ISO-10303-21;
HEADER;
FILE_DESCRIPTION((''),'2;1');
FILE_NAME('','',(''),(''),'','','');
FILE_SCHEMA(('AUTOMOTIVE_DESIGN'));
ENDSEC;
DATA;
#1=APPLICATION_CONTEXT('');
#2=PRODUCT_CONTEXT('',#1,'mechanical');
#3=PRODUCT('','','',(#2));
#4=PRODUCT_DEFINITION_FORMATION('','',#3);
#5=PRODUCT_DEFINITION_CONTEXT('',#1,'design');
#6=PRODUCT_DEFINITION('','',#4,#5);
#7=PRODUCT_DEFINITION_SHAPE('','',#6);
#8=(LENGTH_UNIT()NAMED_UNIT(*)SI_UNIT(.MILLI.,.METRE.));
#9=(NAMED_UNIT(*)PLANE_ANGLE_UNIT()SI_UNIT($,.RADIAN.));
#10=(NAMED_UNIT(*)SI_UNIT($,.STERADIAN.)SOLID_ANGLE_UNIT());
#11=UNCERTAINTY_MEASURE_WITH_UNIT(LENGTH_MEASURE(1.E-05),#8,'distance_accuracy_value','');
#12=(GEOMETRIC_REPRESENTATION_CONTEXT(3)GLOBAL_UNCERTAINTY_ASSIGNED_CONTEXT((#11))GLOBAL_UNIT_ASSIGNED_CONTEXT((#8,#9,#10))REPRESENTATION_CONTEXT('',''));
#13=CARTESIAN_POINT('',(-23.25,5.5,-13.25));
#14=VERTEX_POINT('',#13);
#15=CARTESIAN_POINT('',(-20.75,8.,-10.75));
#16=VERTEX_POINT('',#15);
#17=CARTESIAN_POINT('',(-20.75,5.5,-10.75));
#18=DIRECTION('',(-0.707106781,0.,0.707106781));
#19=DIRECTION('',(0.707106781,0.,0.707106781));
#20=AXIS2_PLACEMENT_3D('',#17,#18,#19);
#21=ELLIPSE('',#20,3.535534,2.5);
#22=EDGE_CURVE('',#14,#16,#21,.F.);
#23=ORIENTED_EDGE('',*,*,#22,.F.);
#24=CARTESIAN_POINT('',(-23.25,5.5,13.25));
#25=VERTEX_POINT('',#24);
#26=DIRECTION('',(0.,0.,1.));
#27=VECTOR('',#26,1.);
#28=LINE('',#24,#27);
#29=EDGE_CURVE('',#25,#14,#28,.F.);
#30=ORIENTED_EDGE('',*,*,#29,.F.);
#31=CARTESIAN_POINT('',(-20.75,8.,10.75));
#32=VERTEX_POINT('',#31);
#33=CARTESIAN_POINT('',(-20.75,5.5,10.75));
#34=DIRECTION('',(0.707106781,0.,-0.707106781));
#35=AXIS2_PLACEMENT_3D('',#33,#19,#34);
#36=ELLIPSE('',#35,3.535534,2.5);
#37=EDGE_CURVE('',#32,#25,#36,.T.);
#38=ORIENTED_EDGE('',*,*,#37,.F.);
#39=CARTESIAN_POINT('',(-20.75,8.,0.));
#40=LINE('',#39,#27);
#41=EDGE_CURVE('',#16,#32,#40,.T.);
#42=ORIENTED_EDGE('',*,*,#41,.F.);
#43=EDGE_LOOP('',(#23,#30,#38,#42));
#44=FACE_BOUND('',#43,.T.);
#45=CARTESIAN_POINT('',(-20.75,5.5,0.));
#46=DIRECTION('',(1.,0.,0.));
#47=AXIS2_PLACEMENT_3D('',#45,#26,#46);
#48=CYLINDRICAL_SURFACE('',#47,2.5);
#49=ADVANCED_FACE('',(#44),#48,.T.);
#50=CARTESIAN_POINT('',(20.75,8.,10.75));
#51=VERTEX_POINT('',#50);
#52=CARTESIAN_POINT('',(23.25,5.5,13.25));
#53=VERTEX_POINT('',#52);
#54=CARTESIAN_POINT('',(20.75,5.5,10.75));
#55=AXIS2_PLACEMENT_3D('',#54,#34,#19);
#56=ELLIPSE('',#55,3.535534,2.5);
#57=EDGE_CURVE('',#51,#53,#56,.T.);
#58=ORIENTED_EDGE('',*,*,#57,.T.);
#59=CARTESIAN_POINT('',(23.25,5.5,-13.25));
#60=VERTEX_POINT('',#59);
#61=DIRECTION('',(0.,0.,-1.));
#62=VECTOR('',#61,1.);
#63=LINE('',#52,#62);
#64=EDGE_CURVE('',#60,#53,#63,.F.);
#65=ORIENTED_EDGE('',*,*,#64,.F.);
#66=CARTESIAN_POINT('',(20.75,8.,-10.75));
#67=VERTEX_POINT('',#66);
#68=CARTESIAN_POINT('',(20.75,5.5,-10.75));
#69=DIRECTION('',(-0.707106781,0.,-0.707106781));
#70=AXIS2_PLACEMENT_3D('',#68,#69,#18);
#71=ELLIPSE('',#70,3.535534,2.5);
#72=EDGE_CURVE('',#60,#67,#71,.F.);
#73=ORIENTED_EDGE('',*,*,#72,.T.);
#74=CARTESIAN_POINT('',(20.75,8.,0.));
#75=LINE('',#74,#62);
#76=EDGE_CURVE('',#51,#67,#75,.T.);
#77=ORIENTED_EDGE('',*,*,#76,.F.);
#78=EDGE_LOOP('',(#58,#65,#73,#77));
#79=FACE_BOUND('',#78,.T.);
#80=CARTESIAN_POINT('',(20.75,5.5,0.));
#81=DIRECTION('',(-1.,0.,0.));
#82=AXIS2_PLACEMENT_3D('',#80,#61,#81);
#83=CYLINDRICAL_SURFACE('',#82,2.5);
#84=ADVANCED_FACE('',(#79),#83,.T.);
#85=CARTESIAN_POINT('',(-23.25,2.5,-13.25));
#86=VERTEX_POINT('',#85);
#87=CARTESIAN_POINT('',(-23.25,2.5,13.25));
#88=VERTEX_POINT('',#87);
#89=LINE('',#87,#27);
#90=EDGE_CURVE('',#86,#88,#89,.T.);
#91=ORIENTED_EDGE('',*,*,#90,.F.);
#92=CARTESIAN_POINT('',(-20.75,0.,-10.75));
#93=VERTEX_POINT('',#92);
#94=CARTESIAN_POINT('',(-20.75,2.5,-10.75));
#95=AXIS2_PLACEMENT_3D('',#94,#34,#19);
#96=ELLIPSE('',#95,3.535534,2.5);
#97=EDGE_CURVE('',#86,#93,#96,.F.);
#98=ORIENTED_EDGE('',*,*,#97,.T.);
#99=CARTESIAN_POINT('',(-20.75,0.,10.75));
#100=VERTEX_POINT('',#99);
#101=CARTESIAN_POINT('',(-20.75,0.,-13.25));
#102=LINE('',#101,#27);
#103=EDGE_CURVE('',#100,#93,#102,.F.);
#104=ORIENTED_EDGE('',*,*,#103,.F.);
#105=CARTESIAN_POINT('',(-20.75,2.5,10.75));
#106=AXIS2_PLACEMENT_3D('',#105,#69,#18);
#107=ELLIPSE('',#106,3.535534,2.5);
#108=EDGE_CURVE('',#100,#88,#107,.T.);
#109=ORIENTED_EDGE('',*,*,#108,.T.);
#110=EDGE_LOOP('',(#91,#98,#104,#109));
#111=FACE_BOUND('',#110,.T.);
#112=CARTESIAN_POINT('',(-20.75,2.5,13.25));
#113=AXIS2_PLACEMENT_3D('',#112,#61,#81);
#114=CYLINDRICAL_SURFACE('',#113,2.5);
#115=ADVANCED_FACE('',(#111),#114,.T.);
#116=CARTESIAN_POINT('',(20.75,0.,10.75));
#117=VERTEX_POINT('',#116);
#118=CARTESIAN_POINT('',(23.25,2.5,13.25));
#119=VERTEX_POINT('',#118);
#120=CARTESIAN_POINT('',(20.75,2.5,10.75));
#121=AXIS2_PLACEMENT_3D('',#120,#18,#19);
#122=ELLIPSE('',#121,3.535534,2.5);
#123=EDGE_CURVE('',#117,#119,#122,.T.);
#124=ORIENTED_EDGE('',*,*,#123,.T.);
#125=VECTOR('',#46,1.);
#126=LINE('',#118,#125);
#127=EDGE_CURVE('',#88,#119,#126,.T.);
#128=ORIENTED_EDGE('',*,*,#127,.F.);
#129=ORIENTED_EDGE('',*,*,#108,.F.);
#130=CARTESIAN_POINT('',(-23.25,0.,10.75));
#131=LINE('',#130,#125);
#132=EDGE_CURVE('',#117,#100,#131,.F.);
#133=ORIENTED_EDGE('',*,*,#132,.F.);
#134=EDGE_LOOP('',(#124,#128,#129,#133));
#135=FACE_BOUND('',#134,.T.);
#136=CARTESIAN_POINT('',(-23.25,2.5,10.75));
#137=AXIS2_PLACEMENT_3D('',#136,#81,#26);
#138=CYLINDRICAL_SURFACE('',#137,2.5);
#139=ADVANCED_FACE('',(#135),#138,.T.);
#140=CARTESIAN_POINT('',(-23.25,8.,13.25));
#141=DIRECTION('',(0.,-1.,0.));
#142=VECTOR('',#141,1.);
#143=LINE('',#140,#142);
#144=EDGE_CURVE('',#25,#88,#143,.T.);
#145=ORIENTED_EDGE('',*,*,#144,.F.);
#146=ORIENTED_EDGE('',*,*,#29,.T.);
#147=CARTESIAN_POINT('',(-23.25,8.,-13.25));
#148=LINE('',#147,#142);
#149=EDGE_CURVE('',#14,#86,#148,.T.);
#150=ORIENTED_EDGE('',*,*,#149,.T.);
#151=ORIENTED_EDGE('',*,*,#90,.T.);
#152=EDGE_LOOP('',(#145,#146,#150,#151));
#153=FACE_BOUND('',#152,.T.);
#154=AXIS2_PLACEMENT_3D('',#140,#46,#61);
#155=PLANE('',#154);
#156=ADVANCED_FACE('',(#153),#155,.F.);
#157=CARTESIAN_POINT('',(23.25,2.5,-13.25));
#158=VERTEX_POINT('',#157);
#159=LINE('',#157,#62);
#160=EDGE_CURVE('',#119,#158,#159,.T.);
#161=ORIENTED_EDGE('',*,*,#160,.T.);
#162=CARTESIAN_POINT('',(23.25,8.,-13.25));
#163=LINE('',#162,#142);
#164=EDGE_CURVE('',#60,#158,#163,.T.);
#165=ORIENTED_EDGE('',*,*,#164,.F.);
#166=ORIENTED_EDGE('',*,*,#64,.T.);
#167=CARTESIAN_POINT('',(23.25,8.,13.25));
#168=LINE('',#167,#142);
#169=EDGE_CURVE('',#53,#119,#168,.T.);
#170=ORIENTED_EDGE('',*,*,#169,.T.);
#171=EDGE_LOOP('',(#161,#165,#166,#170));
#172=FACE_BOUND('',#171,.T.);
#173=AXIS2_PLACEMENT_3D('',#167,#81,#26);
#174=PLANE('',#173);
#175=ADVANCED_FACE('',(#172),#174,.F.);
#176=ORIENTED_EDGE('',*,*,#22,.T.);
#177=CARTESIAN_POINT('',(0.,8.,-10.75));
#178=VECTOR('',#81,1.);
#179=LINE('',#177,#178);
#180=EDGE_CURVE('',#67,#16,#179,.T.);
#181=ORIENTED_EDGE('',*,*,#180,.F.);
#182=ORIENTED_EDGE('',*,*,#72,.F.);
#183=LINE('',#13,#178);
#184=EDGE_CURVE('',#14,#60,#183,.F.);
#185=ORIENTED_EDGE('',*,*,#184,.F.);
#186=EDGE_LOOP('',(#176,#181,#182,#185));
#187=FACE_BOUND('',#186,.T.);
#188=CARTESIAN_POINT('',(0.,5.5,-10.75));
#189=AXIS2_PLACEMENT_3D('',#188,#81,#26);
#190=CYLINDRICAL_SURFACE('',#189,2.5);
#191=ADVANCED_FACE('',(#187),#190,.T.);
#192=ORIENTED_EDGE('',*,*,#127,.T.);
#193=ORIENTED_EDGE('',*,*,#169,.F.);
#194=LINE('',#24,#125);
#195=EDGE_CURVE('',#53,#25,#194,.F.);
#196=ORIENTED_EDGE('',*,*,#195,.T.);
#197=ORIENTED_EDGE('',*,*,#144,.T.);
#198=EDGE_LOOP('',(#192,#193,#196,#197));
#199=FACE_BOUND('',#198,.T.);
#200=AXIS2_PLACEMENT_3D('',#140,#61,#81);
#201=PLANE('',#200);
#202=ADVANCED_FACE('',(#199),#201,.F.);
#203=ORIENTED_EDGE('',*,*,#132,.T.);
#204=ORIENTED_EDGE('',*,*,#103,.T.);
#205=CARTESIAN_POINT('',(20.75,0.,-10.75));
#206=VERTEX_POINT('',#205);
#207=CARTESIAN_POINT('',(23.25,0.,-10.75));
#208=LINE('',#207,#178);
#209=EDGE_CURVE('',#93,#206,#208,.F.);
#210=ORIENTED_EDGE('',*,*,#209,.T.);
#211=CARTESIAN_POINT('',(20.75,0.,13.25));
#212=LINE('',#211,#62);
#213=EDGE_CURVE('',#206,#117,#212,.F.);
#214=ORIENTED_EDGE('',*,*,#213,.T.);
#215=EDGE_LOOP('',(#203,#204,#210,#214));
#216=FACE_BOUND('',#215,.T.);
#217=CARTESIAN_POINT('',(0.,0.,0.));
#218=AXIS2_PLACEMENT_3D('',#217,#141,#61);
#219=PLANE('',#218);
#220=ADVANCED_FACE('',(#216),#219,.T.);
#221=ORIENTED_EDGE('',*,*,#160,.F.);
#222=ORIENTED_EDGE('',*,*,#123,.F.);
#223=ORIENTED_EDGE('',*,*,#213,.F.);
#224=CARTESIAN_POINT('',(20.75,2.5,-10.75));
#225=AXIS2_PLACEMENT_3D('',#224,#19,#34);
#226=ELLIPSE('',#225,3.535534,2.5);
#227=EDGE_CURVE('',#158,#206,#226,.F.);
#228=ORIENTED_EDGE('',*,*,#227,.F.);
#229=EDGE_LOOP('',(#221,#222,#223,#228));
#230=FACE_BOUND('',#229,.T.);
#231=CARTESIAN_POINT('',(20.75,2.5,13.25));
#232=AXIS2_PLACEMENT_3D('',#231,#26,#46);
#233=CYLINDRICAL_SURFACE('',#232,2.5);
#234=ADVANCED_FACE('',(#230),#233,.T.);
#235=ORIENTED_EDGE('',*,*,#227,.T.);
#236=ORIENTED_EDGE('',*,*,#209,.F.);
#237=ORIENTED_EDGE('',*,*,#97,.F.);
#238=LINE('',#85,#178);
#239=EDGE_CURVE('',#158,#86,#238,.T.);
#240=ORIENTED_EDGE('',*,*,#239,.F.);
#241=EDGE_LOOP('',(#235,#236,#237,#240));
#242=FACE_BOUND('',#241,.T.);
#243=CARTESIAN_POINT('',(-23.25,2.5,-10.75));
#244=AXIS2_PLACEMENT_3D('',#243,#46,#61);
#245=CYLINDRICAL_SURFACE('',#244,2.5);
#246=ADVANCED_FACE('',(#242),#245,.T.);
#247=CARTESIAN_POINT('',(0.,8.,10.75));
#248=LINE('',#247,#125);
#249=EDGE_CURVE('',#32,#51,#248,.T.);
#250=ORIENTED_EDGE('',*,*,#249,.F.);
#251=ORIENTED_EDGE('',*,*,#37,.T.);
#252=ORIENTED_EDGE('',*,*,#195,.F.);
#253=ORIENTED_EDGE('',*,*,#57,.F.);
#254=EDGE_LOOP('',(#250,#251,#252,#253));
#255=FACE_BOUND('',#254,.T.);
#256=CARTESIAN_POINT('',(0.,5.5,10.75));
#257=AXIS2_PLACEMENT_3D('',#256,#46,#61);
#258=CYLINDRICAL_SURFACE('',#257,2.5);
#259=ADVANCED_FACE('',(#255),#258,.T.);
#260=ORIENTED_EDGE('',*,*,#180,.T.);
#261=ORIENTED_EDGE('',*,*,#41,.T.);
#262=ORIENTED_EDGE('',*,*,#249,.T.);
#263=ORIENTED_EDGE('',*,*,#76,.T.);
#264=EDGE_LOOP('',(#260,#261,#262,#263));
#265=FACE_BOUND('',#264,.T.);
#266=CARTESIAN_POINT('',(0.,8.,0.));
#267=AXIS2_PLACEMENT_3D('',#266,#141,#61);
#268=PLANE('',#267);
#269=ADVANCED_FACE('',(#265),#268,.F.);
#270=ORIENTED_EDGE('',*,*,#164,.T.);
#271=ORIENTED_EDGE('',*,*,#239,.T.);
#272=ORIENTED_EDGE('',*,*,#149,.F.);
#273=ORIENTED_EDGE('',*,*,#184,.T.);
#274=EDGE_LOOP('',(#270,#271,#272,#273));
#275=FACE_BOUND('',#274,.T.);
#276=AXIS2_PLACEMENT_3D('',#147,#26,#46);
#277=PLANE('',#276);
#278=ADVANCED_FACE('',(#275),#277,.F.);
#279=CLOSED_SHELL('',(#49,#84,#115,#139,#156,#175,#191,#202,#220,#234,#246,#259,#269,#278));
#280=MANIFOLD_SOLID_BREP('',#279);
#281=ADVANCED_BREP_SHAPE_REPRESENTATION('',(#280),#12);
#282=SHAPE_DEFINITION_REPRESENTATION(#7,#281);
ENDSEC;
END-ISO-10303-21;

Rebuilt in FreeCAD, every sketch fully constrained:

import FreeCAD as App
import Part
import Sketcher


def edges_at(feature, points):
    """Names of the edges that pass closest to the given points."""
    edges = feature.Shape.Edges
    near = lambda p: min(range(len(edges)), key=lambda i: edges[i].distToShape(Part.Vertex(*p))[0])
    return sorted({f"Edge{near(p) + 1}" for p in points})


def add_polygon(sketch, points):
    """Adds a closed chain of lines whose ends are joined by coincident constraints."""
    first, n = sketch.GeometryCount, len(points)
    for a, b in zip(points, points[1:] + points[:1]):
        sketch.addGeometry(Part.LineSegment(App.Vector(*a, 0), App.Vector(*b, 0)), False)
    for i in range(n):
        sketch.addConstraint(Sketcher.Constraint("Coincident", first + i, 2, first + (i + 1) % n, 1))

doc = App.newDocument("Part")
body = doc.addObject("PartDesign::Body", "Body")

sketch1 = doc.addObject("Sketcher::SketchObject", "Sketch")
body.addObject(sketch1)
sketch1.AttachmentSupport = (doc.XZ_Plane, [""])
sketch1.MapMode = "FlatFace"
add_polygon(sketch1, [(-23, -13), (-23, 13), (23, 13), (23, -13)])
sketch1.addConstraint([
    Sketcher.Constraint("Vertical", 0),
    Sketcher.Constraint("Horizontal", 1),
    Sketcher.Constraint("Vertical", 2),
    Sketcher.Constraint("Horizontal", 3),
    Sketcher.Constraint("Symmetric", 0, 2, 2, 2, -1, 1),
    Sketcher.Constraint("DistanceX", 1, 1, 1, 2, 46.5),
    Sketcher.Constraint("DistanceY", 0, 1, 0, 2, 26.5),
])
pad1 = doc.addObject("PartDesign::Pad", "Pad")
body.addObject(pad1)
pad1.Profile = sketch1
pad1.Length = 8
pad1.Reversed = True
doc.recompute()

fillet = doc.addObject("PartDesign::Fillet", "Fillet")
body.addObject(fillet)
fillet.Base = (pad1, edges_at(pad1, [
    (-23.25, 8, 0),
    (0, 8, 13.25),
    (23.25, 8, 0),
    (0, 0, 13.25),
    (-23.25, 0, 0),
    (0, 0, -13.25),
    (23.25, 0, 0),
    (0, 8, -13.25),
]))
fillet.Radius = 2.5

doc.recompute()
